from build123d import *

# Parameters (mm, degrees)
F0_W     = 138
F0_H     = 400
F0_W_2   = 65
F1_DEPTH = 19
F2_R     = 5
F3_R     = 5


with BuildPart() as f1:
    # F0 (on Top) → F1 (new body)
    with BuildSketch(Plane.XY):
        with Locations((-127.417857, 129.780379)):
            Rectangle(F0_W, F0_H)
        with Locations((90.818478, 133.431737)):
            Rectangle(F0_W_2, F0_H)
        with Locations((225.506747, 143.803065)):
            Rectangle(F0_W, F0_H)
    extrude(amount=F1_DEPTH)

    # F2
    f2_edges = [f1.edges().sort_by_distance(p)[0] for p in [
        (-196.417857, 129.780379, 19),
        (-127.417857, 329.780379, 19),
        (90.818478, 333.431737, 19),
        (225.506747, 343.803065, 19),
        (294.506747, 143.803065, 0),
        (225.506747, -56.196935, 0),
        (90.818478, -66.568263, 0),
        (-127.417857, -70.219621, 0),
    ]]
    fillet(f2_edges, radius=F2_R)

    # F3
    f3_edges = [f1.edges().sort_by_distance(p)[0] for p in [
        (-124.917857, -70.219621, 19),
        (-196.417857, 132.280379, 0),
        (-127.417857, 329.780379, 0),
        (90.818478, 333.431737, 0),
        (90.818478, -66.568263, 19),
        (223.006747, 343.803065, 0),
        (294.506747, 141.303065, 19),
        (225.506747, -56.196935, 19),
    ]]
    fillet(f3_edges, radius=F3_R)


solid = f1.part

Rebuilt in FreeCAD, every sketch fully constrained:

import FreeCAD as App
import Part
import Sketcher


def edges_at(feature, points):
    """Names of the edges that pass closest to the given points."""
    edges = feature.Shape.Edges
    near = lambda p: min(range(len(edges)), key=lambda i: edges[i].distToShape(Part.Vertex(*p))[0])
    return sorted({f"Edge{near(p) + 1}" for p in points})


def add_polygon(sketch, points):
    """Adds a closed chain of lines whose ends are joined by coincident constraints."""
    first, n = sketch.GeometryCount, len(points)
    for a, b in zip(points, points[1:] + points[:1]):
        sketch.addGeometry(Part.LineSegment(App.Vector(*a, 0), App.Vector(*b, 0)), False)
    for i in range(n):
        sketch.addConstraint(Sketcher.Constraint("Coincident", first + i, 2, first + (i + 1) % n, 1))

doc = App.newDocument("Part")
body = doc.addObject("PartDesign::Body", "Body")
body.AllowCompound = True

sketch1 = body.newObject("Sketcher::SketchObject", "Sketch")
sketch1.AttachmentSupport = (doc.getObject("XY_Plane"), [""])
sketch1.MapMode = "FlatFace"
add_polygon(sketch1, [(-196, 330), (-196, -70), (-58, -70), (-58, 330)])
add_polygon(sketch1, [(58, 333), (58, -67), (123, -67), (123, 333)])
add_polygon(sketch1, [(157, 344), (157, -56), (295, -56), (295, 344)])
sketch1.addConstraint(Sketcher.Constraint("Vertical", 0))
sketch1.addConstraint(Sketcher.Constraint("Horizontal", 1))
sketch1.addConstraint(Sketcher.Constraint("Vertical", 2))
sketch1.addConstraint(Sketcher.Constraint("Horizontal", 3))
sketch1.addConstraint(Sketcher.Constraint("Vertical", 4))
sketch1.addConstraint(Sketcher.Constraint("Horizontal", 5))
sketch1.addConstraint(Sketcher.Constraint("Vertical", 6))
sketch1.addConstraint(Sketcher.Constraint("Horizontal", 7))
sketch1.addConstraint(Sketcher.Constraint("Vertical", 8))
sketch1.addConstraint(Sketcher.Constraint("Horizontal", 9))
sketch1.addConstraint(Sketcher.Constraint("Vertical", 10))
sketch1.addConstraint(Sketcher.Constraint("Horizontal", 11))
sketch1.addConstraint(Sketcher.Constraint("Equal", 3, 9))
sketch1.addConstraint(Sketcher.Constraint("Equal", 2, 4))
sketch1.addConstraint(Sketcher.Constraint("Equal", 6, 8))
sketch1.addConstraint(Sketcher.Constraint("DistanceX", 1, 1, 1, 2, 138.0))
sketch1.addConstraint(Sketcher.Constraint("DistanceX", 5, 1, 5, 2, 65.0))
sketch1.addConstraint(Sketcher.Constraint("DistanceY", 0, 2, 0, 1, 400.0))
sketch1.addConstraint(Sketcher.Constraint("DistanceY", 0, 2, -1, 1, 70.219621))
sketch1.addConstraint(Sketcher.Constraint("DistanceX", -1, 1, 5, 2, 123.318478))
sketch1.addConstraint(Sketcher.Constraint("DistanceY", 1, 2, 4, 2, 3.651358))
sketch1.addConstraint(Sketcher.Constraint("DistanceX", 5, 2, 8, 2, 33.188269))
sketch1.addConstraint(Sketcher.Constraint("DistanceY", 8, 2, 6, 2, 389.628672))
sketch1.addConstraint(Sketcher.Constraint("DistanceX", 0, 2, -1, 1, 196.417857))
pad1 = body.newObject("PartDesign::Pad", "Pad")
pad1.Profile = sketch1
pad1.Length = 19
doc.recompute()

fillet = body.newObject("PartDesign::Fillet", "Fillet")
fillet.Base = (pad1, edges_at(pad1, [
    (-196.418, 129.78, 19),
    (-127.418, 329.78, 19),
    (90.818, 333.432, 19),
    (225.507, 343.803, 19),
    (294.507, 143.803, 0),
    (225.507, -56.197, 0),
    (90.818, -66.568, 0),
    (-127.418, -70.22, 0),
]))
fillet.Radius = 5
doc.recompute()

fillet2 = body.newObject("PartDesign::Fillet", "Fillet001")
fillet2.Base = (fillet, edges_at(fillet, [
    (-124.918, -70.22, 19),
    (-196.418, 132.28, 0),
    (-127.418, 329.78, 0),
    (90.818, 333.432, 0),
    (90.818, -66.568, 19),
    (223.007, 343.803, 0),
    (294.507, 141.303, 19),
    (225.507, -56.197, 19),
]))
fillet2.Radius = 5

doc.recompute()
